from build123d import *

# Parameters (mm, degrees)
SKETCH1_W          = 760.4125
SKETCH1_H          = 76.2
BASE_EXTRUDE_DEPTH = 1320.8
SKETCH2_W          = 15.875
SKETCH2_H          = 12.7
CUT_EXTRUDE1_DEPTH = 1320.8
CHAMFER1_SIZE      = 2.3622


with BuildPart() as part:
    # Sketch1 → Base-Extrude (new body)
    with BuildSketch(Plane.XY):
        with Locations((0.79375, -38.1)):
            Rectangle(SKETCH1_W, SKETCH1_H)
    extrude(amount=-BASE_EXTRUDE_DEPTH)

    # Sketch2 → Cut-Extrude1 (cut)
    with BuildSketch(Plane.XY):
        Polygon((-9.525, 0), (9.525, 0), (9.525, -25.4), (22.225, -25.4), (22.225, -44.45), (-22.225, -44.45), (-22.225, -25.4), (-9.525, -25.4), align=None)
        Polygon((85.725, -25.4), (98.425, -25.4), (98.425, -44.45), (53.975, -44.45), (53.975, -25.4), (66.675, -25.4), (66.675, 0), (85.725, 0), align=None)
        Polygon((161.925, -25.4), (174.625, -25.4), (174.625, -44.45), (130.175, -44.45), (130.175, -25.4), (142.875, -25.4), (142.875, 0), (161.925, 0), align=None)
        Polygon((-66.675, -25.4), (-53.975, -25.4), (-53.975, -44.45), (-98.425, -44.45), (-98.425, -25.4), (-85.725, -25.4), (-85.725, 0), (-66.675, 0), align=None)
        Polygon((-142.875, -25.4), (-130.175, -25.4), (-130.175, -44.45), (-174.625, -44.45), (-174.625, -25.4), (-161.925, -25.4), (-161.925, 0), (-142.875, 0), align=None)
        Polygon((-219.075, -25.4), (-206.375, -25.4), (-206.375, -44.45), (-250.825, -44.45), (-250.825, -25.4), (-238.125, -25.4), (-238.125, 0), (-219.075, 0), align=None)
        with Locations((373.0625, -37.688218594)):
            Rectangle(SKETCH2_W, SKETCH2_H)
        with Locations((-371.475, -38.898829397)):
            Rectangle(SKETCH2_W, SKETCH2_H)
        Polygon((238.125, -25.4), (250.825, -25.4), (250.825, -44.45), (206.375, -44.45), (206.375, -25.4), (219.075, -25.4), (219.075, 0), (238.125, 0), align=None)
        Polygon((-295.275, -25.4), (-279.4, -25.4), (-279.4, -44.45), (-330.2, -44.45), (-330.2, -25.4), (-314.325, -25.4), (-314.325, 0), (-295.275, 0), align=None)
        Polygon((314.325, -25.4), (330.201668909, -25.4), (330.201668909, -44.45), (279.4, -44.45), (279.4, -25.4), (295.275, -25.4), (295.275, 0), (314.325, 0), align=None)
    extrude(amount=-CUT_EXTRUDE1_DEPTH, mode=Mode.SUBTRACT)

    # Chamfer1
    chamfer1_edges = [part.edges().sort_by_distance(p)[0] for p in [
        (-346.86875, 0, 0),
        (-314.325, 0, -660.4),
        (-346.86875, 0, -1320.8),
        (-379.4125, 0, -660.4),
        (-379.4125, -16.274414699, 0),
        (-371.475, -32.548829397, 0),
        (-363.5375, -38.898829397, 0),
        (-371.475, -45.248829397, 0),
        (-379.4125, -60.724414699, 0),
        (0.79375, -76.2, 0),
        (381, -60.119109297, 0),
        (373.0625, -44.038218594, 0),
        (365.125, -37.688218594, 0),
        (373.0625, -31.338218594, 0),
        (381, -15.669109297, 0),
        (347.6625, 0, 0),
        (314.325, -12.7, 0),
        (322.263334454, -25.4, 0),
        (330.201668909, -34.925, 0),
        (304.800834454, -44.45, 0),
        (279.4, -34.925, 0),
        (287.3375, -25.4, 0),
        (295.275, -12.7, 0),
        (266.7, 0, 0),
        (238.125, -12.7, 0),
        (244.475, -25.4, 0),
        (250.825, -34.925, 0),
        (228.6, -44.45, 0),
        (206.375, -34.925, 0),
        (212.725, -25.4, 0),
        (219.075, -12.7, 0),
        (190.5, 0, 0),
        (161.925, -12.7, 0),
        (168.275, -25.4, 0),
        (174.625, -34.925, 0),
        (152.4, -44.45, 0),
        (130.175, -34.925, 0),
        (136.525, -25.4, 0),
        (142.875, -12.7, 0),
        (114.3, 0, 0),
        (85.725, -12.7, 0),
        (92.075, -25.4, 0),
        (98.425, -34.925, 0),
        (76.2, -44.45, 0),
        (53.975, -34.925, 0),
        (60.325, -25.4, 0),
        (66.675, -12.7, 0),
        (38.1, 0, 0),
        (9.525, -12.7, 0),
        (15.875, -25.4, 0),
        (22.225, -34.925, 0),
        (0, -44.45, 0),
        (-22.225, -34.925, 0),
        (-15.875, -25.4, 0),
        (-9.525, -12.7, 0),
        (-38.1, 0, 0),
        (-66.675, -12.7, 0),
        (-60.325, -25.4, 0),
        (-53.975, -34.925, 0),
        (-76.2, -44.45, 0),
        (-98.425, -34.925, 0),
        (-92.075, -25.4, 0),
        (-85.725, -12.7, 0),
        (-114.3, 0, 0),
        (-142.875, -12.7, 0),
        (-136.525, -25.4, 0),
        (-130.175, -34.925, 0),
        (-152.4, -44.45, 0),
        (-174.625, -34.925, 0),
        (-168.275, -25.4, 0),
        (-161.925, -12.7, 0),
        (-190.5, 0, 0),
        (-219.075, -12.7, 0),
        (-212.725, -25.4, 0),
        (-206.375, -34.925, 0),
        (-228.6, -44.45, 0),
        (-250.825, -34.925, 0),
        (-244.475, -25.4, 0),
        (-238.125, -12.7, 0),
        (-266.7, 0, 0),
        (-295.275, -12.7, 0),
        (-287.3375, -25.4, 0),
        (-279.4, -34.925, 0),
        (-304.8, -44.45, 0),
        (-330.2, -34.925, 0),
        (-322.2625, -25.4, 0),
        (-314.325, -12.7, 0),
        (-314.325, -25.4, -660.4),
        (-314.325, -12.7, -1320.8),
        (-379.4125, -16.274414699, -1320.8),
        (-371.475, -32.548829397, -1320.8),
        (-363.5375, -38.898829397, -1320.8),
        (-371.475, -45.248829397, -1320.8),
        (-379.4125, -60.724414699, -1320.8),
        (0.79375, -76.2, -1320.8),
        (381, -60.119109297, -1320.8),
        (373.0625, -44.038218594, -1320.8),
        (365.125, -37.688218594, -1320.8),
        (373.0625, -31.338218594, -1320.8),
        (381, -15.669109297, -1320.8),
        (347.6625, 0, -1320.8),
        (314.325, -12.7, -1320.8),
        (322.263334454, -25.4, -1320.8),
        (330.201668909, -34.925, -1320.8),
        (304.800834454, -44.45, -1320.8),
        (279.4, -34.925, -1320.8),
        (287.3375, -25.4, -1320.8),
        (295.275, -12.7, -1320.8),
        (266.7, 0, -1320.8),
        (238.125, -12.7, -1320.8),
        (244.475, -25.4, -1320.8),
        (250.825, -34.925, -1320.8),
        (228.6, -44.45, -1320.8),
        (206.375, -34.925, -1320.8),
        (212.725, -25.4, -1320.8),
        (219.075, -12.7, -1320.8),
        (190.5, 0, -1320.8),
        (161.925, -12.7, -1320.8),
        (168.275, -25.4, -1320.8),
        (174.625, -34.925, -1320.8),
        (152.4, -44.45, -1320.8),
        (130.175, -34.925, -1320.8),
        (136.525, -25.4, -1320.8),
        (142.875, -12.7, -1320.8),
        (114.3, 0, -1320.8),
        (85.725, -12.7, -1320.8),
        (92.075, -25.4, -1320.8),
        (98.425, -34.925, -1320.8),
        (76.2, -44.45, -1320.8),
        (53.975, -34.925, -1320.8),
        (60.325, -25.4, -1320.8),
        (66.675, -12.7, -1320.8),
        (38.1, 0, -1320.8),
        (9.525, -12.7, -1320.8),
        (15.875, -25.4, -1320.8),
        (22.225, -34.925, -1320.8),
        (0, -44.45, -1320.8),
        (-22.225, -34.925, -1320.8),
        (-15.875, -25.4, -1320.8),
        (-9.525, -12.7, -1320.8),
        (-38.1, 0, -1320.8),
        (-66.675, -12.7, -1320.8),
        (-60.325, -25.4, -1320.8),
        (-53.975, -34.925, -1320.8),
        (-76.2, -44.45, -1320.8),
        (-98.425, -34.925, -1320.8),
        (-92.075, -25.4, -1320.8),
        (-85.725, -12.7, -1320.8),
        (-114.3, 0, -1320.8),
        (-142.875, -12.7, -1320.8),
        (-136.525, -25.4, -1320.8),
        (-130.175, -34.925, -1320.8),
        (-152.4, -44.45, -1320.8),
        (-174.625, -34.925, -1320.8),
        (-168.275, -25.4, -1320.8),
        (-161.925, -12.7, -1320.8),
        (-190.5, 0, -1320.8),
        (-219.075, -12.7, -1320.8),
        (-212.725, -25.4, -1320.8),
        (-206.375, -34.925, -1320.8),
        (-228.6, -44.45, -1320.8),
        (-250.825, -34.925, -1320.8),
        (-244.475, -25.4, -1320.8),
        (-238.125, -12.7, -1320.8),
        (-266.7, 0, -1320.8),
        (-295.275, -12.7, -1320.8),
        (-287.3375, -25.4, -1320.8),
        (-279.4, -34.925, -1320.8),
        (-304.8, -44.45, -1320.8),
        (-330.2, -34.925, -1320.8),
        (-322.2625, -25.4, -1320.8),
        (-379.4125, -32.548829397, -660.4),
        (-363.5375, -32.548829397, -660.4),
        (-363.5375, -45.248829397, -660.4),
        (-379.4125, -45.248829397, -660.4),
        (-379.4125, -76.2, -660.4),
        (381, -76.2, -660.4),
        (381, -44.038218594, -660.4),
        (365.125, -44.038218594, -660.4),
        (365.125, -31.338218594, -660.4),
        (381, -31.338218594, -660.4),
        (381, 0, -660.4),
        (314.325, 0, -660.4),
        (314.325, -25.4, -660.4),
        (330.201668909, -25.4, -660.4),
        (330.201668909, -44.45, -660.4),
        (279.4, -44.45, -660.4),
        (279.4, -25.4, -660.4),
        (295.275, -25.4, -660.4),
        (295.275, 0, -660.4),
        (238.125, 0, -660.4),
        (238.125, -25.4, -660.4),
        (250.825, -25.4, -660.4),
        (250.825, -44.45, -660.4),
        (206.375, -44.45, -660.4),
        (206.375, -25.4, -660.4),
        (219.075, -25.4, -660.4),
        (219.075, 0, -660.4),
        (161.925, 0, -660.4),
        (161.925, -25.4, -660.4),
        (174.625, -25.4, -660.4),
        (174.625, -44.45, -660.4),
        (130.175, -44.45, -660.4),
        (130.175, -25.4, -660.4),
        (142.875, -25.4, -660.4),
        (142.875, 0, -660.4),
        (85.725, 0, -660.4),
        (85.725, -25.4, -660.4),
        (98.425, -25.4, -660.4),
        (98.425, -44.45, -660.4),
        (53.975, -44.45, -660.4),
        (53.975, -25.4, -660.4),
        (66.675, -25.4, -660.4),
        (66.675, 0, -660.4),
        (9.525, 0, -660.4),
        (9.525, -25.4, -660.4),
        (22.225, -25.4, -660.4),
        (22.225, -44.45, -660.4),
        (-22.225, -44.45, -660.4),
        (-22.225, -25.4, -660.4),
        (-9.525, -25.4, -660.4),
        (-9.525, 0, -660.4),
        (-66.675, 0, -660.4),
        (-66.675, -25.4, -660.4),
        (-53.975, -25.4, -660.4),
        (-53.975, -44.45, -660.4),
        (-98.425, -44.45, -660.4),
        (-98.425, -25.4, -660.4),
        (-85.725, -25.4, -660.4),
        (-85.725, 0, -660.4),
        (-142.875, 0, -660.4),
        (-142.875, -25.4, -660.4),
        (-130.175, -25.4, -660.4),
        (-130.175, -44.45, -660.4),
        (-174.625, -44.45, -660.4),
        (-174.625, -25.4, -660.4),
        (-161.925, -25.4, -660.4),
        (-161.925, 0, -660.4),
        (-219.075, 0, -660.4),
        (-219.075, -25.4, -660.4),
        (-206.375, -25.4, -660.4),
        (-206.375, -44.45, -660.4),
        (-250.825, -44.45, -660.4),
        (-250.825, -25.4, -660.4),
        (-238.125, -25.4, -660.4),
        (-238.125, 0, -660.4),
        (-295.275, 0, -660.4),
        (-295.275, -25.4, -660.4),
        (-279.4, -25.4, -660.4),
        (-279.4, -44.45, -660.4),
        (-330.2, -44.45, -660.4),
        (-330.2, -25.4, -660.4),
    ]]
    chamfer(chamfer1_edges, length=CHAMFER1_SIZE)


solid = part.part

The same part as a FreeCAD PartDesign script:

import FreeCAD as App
import Part
import Sketcher

V = App.Vector
Q = App.Units.Quantity


def add_polygon(sketch, points):
    """Adds a closed chain of lines whose ends are joined by coincident constraints."""
    first, n = sketch.GeometryCount, len(points)
    for a, b in zip(points, points[1:] + points[:1]):
        sketch.addGeometry(Part.LineSegment(App.Vector(*a, 0), App.Vector(*b, 0)), False)
    for i in range(n):
        sketch.addConstraint(Sketcher.Constraint("Coincident", first + i, 2, first + (i + 1) % n, 1))

doc = App.newDocument("Part")
body = doc.addObject("PartDesign::Body", "Body")

# Sketch on XY plane
sketch1 = body.newObject("Sketcher::SketchObject", "Sketch")
sketch1.AttachmentSupport = (doc.getObject("XY_Plane"), [""])
sketch1.MapMode = "FlatFace"
add_polygon(sketch1, [(-379, 0), (-379, -76), (381, -76), (381, 0)])  # lines 0-3
sketch1.addConstraint([
    Sketcher.Constraint("Vertical", 0),
    Sketcher.Constraint("Horizontal", 1),
    Sketcher.Constraint("Vertical", 2),
    Sketcher.Constraint("Horizontal", 3),
    Sketcher.Constraint("PointOnObject", 2, 2, -1),
    Sketcher.Constraint("DistanceY", 0, 2, 0, 1, Q("3 in")),
    Sketcher.Constraint("DistanceX", -1, 1, 1, 2, Q("15 in")),
    Sketcher.Constraint("DistanceX", 1, 1, 1, 2, Q("29.9375 in")),
])
pad1 = body.newObject("PartDesign::Pad", "Pad")
pad1.Profile = sketch1
pad1.Length = Q("52 in")
pad1.Reversed = True

# Sketch on XY plane
sketch2 = body.newObject("Sketcher::SketchObject", "Sketch001")
sketch2.AttachmentSupport = (doc.getObject("XY_Plane"), [""])
sketch2.MapMode = "FlatFace"
add_polygon(sketch2, [(10, 0), (-10, 0), (-10, -25), (-22, -25), (-22, -44), (22, -44), (22, -25), (10, -25)])  # lines 0-7
add_polygon(sketch2, [(98, -25), (86, -25), (86, 0), (67, 0), (67, -25), (54, -25), (54, -44), (98, -44)])  # lines 8-15
add_polygon(sketch2, [(175, -25), (162, -25), (162, 0), (143, 0), (143, -25), (130, -25), (130, -44), (175, -44)])  # lines 16-23
add_polygon(sketch2, [(-54, -25), (-67, -25), (-67, 0), (-86, 0), (-86, -25), (-98, -25), (-98, -44), (-54, -44)])  # lines 24-31
add_polygon(sketch2, [(-130, -25), (-143, -25), (-143, 0), (-162, 0), (-162, -25), (-175, -25), (-175, -44), (-130, -44)])  # lines 32-39
add_polygon(sketch2, [(-206, -25), (-219, -25), (-219, 0), (-238, 0), (-238, -25), (-251, -25), (-251, -44), (-206, -44)])  # lines 40-47
add_polygon(sketch2, [(365, -31), (365, -44), (381, -44), (381, -31)])  # lines 48-51
add_polygon(sketch2, [(-379, -33), (-379, -45), (-364, -45), (-364, -33)])  # lines 52-55
add_polygon(sketch2, [(251, -25), (238, -25), (238, 0), (219, 0), (219, -25), (206, -25), (206, -44), (251, -44)])  # lines 56-63
add_polygon(sketch2, [(-279, -25), (-295, -25), (-295, 0), (-314, 0), (-314, -25), (-330, -25), (-330, -44), (-279, -44)])  # lines 64-71
add_polygon(sketch2, [(330, -25), (314, -25), (314, 0), (295, 0), (295, -25), (279, -25), (279, -44), (330, -44)])  # lines 72-79
sketch2.addConstraint([
    Sketcher.Constraint("Horizontal", 0),
    Sketcher.Constraint("Vertical", 1),
    Sketcher.Constraint("Horizontal", 2),
    Sketcher.Constraint("Vertical", 3),
    Sketcher.Constraint("Horizontal", 4),
    Sketcher.Constraint("Vertical", 5),
    Sketcher.Constraint("Horizontal", 6),
    Sketcher.Constraint("Vertical", 7),
    Sketcher.Constraint("Horizontal", 8),
    Sketcher.Constraint("Vertical", 9),
    Sketcher.Constraint("Horizontal", 10),
    Sketcher.Constraint("Vertical", 11),
    Sketcher.Constraint("Horizontal", 12),
    Sketcher.Constraint("Vertical", 13),
    Sketcher.Constraint("Horizontal", 14),
    Sketcher.Constraint("Vertical", 15),
    Sketcher.Constraint("Horizontal", 16),
    Sketcher.Constraint("Vertical", 17),
    Sketcher.Constraint("Horizontal", 18),
    Sketcher.Constraint("Vertical", 19),
    Sketcher.Constraint("Horizontal", 20),
    Sketcher.Constraint("Vertical", 21),
    Sketcher.Constraint("Horizontal", 22),
    Sketcher.Constraint("Vertical", 23),
    Sketcher.Constraint("Horizontal", 24),
    Sketcher.Constraint("Vertical", 25),
    Sketcher.Constraint("Horizontal", 26),
    Sketcher.Constraint("Vertical", 27),
    Sketcher.Constraint("Horizontal", 28),
    Sketcher.Constraint("Vertical", 29),
    Sketcher.Constraint("Horizontal", 30),
    Sketcher.Constraint("Vertical", 31),
    Sketcher.Constraint("Horizontal", 32),
    Sketcher.Constraint("Vertical", 33),
    Sketcher.Constraint("Horizontal", 34),
    Sketcher.Constraint("Vertical", 35),
    Sketcher.Constraint("Horizontal", 36),
    Sketcher.Constraint("Vertical", 37),
    Sketcher.Constraint("Horizontal", 38),
    Sketcher.Constraint("Vertical", 39),
    Sketcher.Constraint("Horizontal", 40),
    Sketcher.Constraint("Vertical", 41),
    Sketcher.Constraint("Horizontal", 42),
    Sketcher.Constraint("Vertical", 43),
    Sketcher.Constraint("Horizontal", 44),
    Sketcher.Constraint("Vertical", 45),
    Sketcher.Constraint("Horizontal", 46),
    Sketcher.Constraint("Vertical", 47),
    Sketcher.Constraint("Vertical", 48),
    Sketcher.Constraint("Horizontal", 49),
    Sketcher.Constraint("Vertical", 50),
    Sketcher.Constraint("Horizontal", 51),
    Sketcher.Constraint("Vertical", 52),
    Sketcher.Constraint("Horizontal", 53),
    Sketcher.Constraint("Vertical", 54),
    Sketcher.Constraint("Horizontal", 55),
    Sketcher.Constraint("Horizontal", 56),
    Sketcher.Constraint("Vertical", 57),
    Sketcher.Constraint("Horizontal", 58),
    Sketcher.Constraint("Vertical", 59),
    Sketcher.Constraint("Horizontal", 60),
    Sketcher.Constraint("Vertical", 61),
    Sketcher.Constraint("Horizontal", 62),
    Sketcher.Constraint("Vertical", 63),
    Sketcher.Constraint("Horizontal", 64),
    Sketcher.Constraint("Vertical", 65),
    Sketcher.Constraint("Horizontal", 66),
    Sketcher.Constraint("Vertical", 67),
    Sketcher.Constraint("Horizontal", 68),
    Sketcher.Constraint("Vertical", 69),
    Sketcher.Constraint("Horizontal", 70),
    Sketcher.Constraint("Vertical", 71),
    Sketcher.Constraint("Horizontal", 72),
    Sketcher.Constraint("Vertical", 73),
    Sketcher.Constraint("Horizontal", 74),
    Sketcher.Constraint("Vertical", 75),
    Sketcher.Constraint("Horizontal", 76),
    Sketcher.Constraint("Vertical", 77),
    Sketcher.Constraint("Horizontal", 78),
    Sketcher.Constraint("Vertical", 79),
    Sketcher.Constraint("Symmetric", 0, 2, 7, 2, -1, 1),
    Sketcher.Constraint("Symmetric", 10, 2, 25, 2, -1, 1),
    Sketcher.Constraint("Symmetric", 18, 2, 33, 2, -1, 1),
    Sketcher.Constraint("Symmetric", 42, 2, 57, 2, -1, 1),
    Sketcher.Constraint("Symmetric", 66, 2, 73, 2, -1, 1),
    Sketcher.Constraint("Symmetric", 2, 2, 5, 2, -2),
    Sketcher.Constraint("Symmetric", 9, 2, 26, 2, -2),
    Sketcher.Constraint("Symmetric", 15, 2, 28, 2, -2),
    Sketcher.Constraint("Symmetric", 13, 2, 30, 2, -2),
    Sketcher.Constraint("Symmetric", 17, 2, 34, 2, -2),
    Sketcher.Constraint("Symmetric", 23, 2, 36, 2, -2),
    Sketcher.Constraint("Symmetric", 21, 2, 38, 2, -2),
    Sketcher.Constraint("Symmetric", 41, 2, 58, 2, -2),
    Sketcher.Constraint("Symmetric", 47, 2, 60, 2, -2),
    Sketcher.Constraint("Symmetric", 45, 2, 62, 2, -2),
    Sketcher.Constraint("Symmetric", 65, 2, 74, 2, -2),
    Sketcher.Constraint("Symmetric", 71, 2, 76, 2, -2),
    Sketcher.Constraint("Horizontal", 6, 2, 8, 2),
    Sketcher.Constraint("Horizontal", 8, 2, 11, 2),
    Sketcher.Constraint("Horizontal", 4, 2, 13, 2),
    Sketcher.Constraint("Horizontal", 15, 2, 16, 2),
    Sketcher.Constraint("Horizontal", 16, 2, 19, 2),
    Sketcher.Constraint("Horizontal", 14, 2, 21, 2),
    Sketcher.Constraint("Horizontal", 23, 2, 24, 2),
    Sketcher.Constraint("Horizontal", 31, 2, 32, 2),
    Sketcher.Constraint("Horizontal", 39, 2, 40, 2),
    Sketcher.Constraint("Horizontal", 40, 2, 43, 2),
    Sketcher.Constraint("Horizontal", 38, 2, 45, 2),
    Sketcher.Constraint("Horizontal", 47, 2, 56, 2),
    Sketcher.Constraint("Horizontal", 63, 2, 64, 2),
    Sketcher.Constraint("Horizontal", 64, 2, 67, 2),
    Sketcher.Constraint("Horizontal", 62, 2, 69, 2),
    Sketcher.Constraint("Horizontal", 71, 2, 72, 2),
    Sketcher.Constraint("Horizontal", 70, 2, 77, 2),
    Sketcher.Constraint("Equal", 6, 8),
    Sketcher.Constraint("Equal", 0, 10),
    Sketcher.Constraint("Equal", 8, 12),
    Sketcher.Constraint("Equal", 12, 16),
    Sketcher.Constraint("Equal", 10, 18),
    Sketcher.Constraint("Equal", 16, 20),
    Sketcher.Constraint("Equal", 36, 40),
    Sketcher.Constraint("Equal", 34, 42),
    Sketcher.Constraint("Equal", 40, 44),
    Sketcher.Constraint("Equal", 51, 53),
    Sketcher.Constraint("Equal", 55, 64),
    Sketcher.Constraint("Equal", 58, 66),
    Sketcher.Constraint("Equal", 64, 68),
    Sketcher.Constraint("Equal", 74, 3),
    Sketcher.Constraint("Equal", 60, 48),
    Sketcher.Constraint("Equal", 50, 52),
    Sketcher.Constraint("DistanceX", 70, 1, 70, 2, Q("2 in")),
    Sketcher.Constraint("DistanceY", 1, 2, 1, 1, Q("1 in")),
    Sketcher.Constraint("DistanceX", 2, 2, 2, 1, Q("0.5 in")),
    Sketcher.Constraint("DistanceX", -1, 1, 49, 2, Q("15 in")),
    Sketcher.Constraint("DistanceX", 68, 2, -1, 1, Q("13 in")),
    Sketcher.Constraint("DistanceX", 0, 2, 0, 1, Q("0.75 in")),
    Sketcher.Constraint("DistanceX", -1, 1, 8, 2, Q("3.375 in")),
    Sketcher.Constraint("DistanceX", -1, 1, 16, 2, Q("6.375 in")),
    Sketcher.Constraint("DistanceX", 40, 2, -1, 1, Q("8.625 in")),
    Sketcher.Constraint("DistanceX", 52, 2, -1, 1, Q("14.9375 in")),
    Sketcher.Constraint("DistanceX", 72, 2, 72, 1, Q("15.876669 mm")),
    Sketcher.Constraint("DistanceY", 48, 2, -1, 1, Q("44.038219 mm")),
    Sketcher.Constraint("DistanceY", 52, 2, -1, 1, Q("45.248829 mm")),
])
pocket1 = body.newObject("PartDesign::Pocket", "Pocket")
pocket1.Profile = sketch2
pocket1.Length = Q("52 in")
doc.recompute()

chamfer = body.newObject("PartDesign::Chamfer", "Chamfer")
chamfer.Base = (pocket1, ["Edge1"])
chamfer.UseAllEdges = True
chamfer.Size = Q("0.093 in")

doc.recompute()
